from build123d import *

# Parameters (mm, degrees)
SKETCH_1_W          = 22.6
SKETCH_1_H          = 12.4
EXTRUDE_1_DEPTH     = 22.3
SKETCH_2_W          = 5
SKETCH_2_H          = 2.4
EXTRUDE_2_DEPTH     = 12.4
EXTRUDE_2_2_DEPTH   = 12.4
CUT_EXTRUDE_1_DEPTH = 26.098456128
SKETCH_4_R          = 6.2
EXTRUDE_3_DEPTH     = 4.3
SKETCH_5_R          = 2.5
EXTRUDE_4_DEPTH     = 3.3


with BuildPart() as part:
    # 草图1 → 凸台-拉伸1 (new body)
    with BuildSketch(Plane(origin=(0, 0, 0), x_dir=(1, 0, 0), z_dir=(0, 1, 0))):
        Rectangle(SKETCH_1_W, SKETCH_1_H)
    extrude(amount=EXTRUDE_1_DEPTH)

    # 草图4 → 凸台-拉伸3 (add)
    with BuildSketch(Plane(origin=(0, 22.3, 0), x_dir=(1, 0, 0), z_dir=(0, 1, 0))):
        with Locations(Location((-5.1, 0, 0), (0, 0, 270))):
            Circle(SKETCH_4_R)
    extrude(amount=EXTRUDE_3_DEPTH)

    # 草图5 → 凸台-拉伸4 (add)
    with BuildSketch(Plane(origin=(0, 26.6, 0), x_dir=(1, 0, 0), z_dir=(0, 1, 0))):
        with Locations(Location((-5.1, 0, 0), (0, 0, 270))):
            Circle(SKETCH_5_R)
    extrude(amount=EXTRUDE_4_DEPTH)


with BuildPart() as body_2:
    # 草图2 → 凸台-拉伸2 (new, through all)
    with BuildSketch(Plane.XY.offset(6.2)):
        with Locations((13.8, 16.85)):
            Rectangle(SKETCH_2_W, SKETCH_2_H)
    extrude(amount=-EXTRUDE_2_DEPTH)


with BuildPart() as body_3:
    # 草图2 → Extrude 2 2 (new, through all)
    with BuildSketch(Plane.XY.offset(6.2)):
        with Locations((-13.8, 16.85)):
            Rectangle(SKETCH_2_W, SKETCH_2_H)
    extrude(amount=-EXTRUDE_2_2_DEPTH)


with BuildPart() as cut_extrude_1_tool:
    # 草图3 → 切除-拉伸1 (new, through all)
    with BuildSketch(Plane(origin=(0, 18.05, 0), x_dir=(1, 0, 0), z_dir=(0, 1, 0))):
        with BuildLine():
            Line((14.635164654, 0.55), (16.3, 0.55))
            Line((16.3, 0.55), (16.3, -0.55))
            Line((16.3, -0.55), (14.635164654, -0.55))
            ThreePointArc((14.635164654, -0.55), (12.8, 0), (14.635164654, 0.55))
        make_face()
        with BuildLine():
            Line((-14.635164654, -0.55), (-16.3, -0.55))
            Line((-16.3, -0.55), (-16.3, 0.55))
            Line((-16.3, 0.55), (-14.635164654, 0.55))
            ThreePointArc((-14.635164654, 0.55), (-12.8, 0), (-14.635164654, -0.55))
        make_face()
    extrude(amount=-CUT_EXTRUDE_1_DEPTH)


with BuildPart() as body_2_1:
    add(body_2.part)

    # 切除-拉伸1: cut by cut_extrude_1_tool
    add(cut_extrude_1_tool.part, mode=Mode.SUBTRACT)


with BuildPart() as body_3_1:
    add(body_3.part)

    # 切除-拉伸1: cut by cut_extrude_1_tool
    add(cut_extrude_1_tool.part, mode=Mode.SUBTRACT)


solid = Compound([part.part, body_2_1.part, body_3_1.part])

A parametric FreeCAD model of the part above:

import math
import FreeCAD as App
import Part
import Sketcher
Q = App.Units.Quantity


def add_polygon(sketch, points):
    """Adds a closed chain of lines whose ends are joined by coincident constraints."""
    first, n = sketch.GeometryCount, len(points)
    for a, b in zip(points, points[1:] + points[:1]):
        sketch.addGeometry(Part.LineSegment(App.Vector(*a, 0), App.Vector(*b, 0)), False)
    for i in range(n):
        sketch.addConstraint(Sketcher.Constraint("Coincident", first + i, 2, first + (i + 1) % n, 1))

doc = App.newDocument("Part")
body = doc.addObject("PartDesign::Body", "Body")

# Sketch on XZ plane
sketch1 = body.newObject("Sketcher::SketchObject", "Sketch")
sketch1.AttachmentSupport = (doc.getObject("XZ_Plane"), [""])
sketch1.MapMode = "FlatFace"
add_polygon(sketch1, [(-11, -6), (-11, 6), (11, 6), (11, -6)])  # lines 0-3
sketch1.addConstraint(Sketcher.Constraint("Vertical", 0))
sketch1.addConstraint(Sketcher.Constraint("Horizontal", 1))
sketch1.addConstraint(Sketcher.Constraint("Vertical", 2))
sketch1.addConstraint(Sketcher.Constraint("Horizontal", 3))
sketch1.addConstraint(Sketcher.Constraint("Symmetric", 0, 2, 2, 2, -1, 1))
sketch1.addConstraint(Sketcher.Constraint("DistanceX", 1, 1, 1, 2, Q("22.6 mm")))
sketch1.addConstraint(Sketcher.Constraint("DistanceY", 0, 1, 0, 2, Q("12.4 mm")))
pad1 = body.newObject("PartDesign::Pad", "Pad")
pad1.Profile = sketch1
pad1.Length = 22.3
pad1.Reversed = True

# Sketch on XZ plane
sketch2 = body.newObject("Sketcher::SketchObject", "Sketch001")
sketch2.AttachmentSupport = (doc.getObject("XZ_Plane"), [""])
sketch2.MapMode = "FlatFace"
sketch2.AttachmentOffset = App.Placement(App.Vector(0, 0, -22.3), App.Rotation())
sketch2.addGeometry(Part.Circle(App.Vector(-5, 0, 0), App.Vector(0, 0, 1), 6), False)
sketch2.addConstraint(Sketcher.Constraint("PointOnObject", 0, 3, -1))
sketch2.addConstraint(Sketcher.Constraint("Diameter", 0, Q("12.4 mm")))
sketch2.addConstraint(Sketcher.Constraint("DistanceX", 0, 3, -1, 1, Q("5.1 mm")))
pad2 = body.newObject("PartDesign::Pad", "Pad001")
pad2.Profile = sketch2
pad2.Length = 4.3
pad2.Reversed = True

# Sketch on XZ plane
sketch3 = body.newObject("Sketcher::SketchObject", "Sketch002")
sketch3.AttachmentSupport = (doc.getObject("XZ_Plane"), [""])
sketch3.MapMode = "FlatFace"
sketch3.AttachmentOffset = App.Placement(App.Vector(0, 0, -26.6), App.Rotation())
sketch3.addGeometry(Part.Circle(App.Vector(-5.1, 0, 0), App.Vector(0, 0, 1), 2.5), False)
sketch3.addConstraint(Sketcher.Constraint("PointOnObject", 0, 3, -1))
sketch3.addConstraint(Sketcher.Constraint("Diameter", 0, Q("5 mm")))
sketch3.addConstraint(Sketcher.Constraint("DistanceX", 0, 3, -1, 1, Q("5.1 mm")))
pad3 = body.newObject("PartDesign::Pad", "Pad002")
pad3.Profile = sketch3
pad3.Length = 3.3
pad3.Reversed = True
body2 = doc.addObject("PartDesign::Body", "Body001")

# Sketch on XY plane
sketch4 = body2.newObject("Sketcher::SketchObject", "Sketch003")
sketch4.AttachmentSupport = (doc.getObject("XY_Plane001"), [""])
sketch4.MapMode = "FlatFace"
sketch4.AttachmentOffset = App.Placement(App.Vector(0, 0, 6.2), App.Rotation())
add_polygon(sketch4, [(11.3, 18.1), (11.3, 15.7), (16.3, 15.7), (16.3, 18.1)])  # lines 0-3
sketch4.addConstraint(Sketcher.Constraint("Vertical", 0))
sketch4.addConstraint(Sketcher.Constraint("Horizontal", 1))
sketch4.addConstraint(Sketcher.Constraint("Vertical", 2))
sketch4.addConstraint(Sketcher.Constraint("Horizontal", 3))
sketch4.addConstraint(Sketcher.Constraint("DistanceX", 1, 1, 1, 2, Q("5 mm")))
sketch4.addConstraint(Sketcher.Constraint("DistanceY", 0, 2, 0, 1, Q("2.4 mm")))
sketch4.addConstraint(Sketcher.Constraint("DistanceX", -1, 1, 0, 2, Q("11.3 mm")))
sketch4.addConstraint(Sketcher.Constraint("DistanceY", -1, 1, 0, 2, Q("15.65 mm")))
pad4 = body2.newObject("PartDesign::Pad", "Pad003")
pad4.Profile = sketch4
pad4.Length = 12.4
pad4.Reversed = True
body3 = doc.addObject("PartDesign::Body", "Body002")

# Sketch on XY plane
sketch5 = body3.newObject("Sketcher::SketchObject", "Sketch004")
sketch5.AttachmentSupport = (doc.getObject("XY_Plane002"), [""])
sketch5.MapMode = "FlatFace"
sketch5.AttachmentOffset = App.Placement(App.Vector(0, 0, 6.2), App.Rotation())
add_polygon(sketch5, [(-16.3, 18.1), (-16.3, 15.7), (-11.3, 15.7), (-11.3, 18.1)])  # lines 0-3
sketch5.addConstraint(Sketcher.Constraint("Vertical", 0))
sketch5.addConstraint(Sketcher.Constraint("Horizontal", 1))
sketch5.addConstraint(Sketcher.Constraint("Vertical", 2))
sketch5.addConstraint(Sketcher.Constraint("Horizontal", 3))
sketch5.addConstraint(Sketcher.Constraint("DistanceX", 1, 1, 1, 2, Q("5 mm")))
sketch5.addConstraint(Sketcher.Constraint("DistanceY", 0, 2, 0, 1, Q("2.4 mm")))
sketch5.addConstraint(Sketcher.Constraint("DistanceX", 0, 2, -1, 1, Q("16.3 mm")))
sketch5.addConstraint(Sketcher.Constraint("DistanceY", -1, 1, 0, 2, Q("15.65 mm")))
pad5 = body3.newObject("PartDesign::Pad", "Pad004")
pad5.Profile = sketch5
pad5.Length = 12.4
pad5.Reversed = True
body4 = doc.addObject("PartDesign::Body", "Body003")
body4.AllowCompound = True

# Sketch on XZ plane
sketch6 = body4.newObject("Sketcher::SketchObject", "Sketch005")
sketch6.AttachmentSupport = (doc.getObject("XZ_Plane003"), [""])
sketch6.MapMode = "FlatFace"
sketch6.AttachmentOffset = App.Placement(App.Vector(0, 0, -18.05), App.Rotation())
sketch6.addGeometry(Part.LineSegment(App.Vector(16.3, -0.6, 0), App.Vector(14.6, -0.6, 0)), False)
sketch6.addGeometry(Part.ArcOfCircle(Part.Circle(App.Vector(13.8, 0, 0), App.Vector(0, 0, 1), 1), math.radians(33), math.radians(327)), False)
sketch6.addGeometry(Part.LineSegment(App.Vector(14.6, 0.6, 0), App.Vector(16.3, 0.6, 0)), False)
sketch6.addGeometry(Part.LineSegment(App.Vector(16.3, 0.6, 0), App.Vector(16.3, -0.6, 0)), False)
sketch6.addGeometry(Part.LineSegment(App.Vector(-16.3, 0.6, 0), App.Vector(-14.6, 0.6, 0)), False)
sketch6.addGeometry(Part.ArcOfCircle(Part.Circle(App.Vector(-13.8, 0, 0), App.Vector(0, 0, 1), 1), math.radians(-147), math.radians(147)), False)
sketch6.addGeometry(Part.LineSegment(App.Vector(-14.6, -0.6, 0), App.Vector(-16.3, -0.6, 0)), False)
sketch6.addGeometry(Part.LineSegment(App.Vector(-16.3, -0.6, 0), App.Vector(-16.3, 0.6, 0)), False)
sketch6.addConstraint(Sketcher.Constraint("Coincident", 0, 2, 1, 2))
sketch6.addConstraint(Sketcher.Constraint("Coincident", 1, 1, 2, 1))
sketch6.addConstraint(Sketcher.Constraint("Coincident", 2, 2, 3, 1))
sketch6.addConstraint(Sketcher.Constraint("Coincident", 3, 2, 0, 1))
sketch6.addConstraint(Sketcher.Constraint("Coincident", 4, 2, 5, 2))
sketch6.addConstraint(Sketcher.Constraint("Coincident", 5, 1, 6, 1))
sketch6.addConstraint(Sketcher.Constraint("Coincident", 6, 2, 7, 1))
sketch6.addConstraint(Sketcher.Constraint("Coincident", 7, 2, 4, 1))
sketch6.addConstraint(Sketcher.Constraint("Horizontal", 0))
sketch6.addConstraint(Sketcher.Constraint("Horizontal", 2))
sketch6.addConstraint(Sketcher.Constraint("Vertical", 3))
sketch6.addConstraint(Sketcher.Constraint("Horizontal", 4))
sketch6.addConstraint(Sketcher.Constraint("Horizontal", 6))
sketch6.addConstraint(Sketcher.Constraint("Vertical", 7))
sketch6.addConstraint(Sketcher.Constraint("Equal", 1, 5))
sketch6.addConstraint(Sketcher.Constraint("Symmetric", 1, 3, 5, 3, -1, 1))
sketch6.addConstraint(Sketcher.Constraint("Symmetric", 2, 2, 6, 2, -1, 1))
sketch6.addConstraint(Sketcher.Constraint("Symmetric", 1, 1, 4, 2, -2))
sketch6.addConstraint(Sketcher.Constraint("Horizontal", 3, 2, 5, 1))
sketch6.addConstraint(Sketcher.Constraint("Radius", 1, Q("1 mm")))
sketch6.addConstraint(Sketcher.Constraint("DistanceY", 3, 2, 3, 1, Q("1.1 mm")))
sketch6.addConstraint(Sketcher.Constraint("DistanceX", -1, 1, 1, 3, Q("13.8 mm")))
sketch6.addConstraint(Sketcher.Constraint("DistanceX", -1, 1, 2, 2, Q("16.3 mm")))
pad6 = body4.newObject("PartDesign::Pad", "Pad005")
pad6.Profile = sketch6
pad6.Length = 26.098456
doc.recompute()

body5 = doc.addObject("PartDesign::Body", "Body004")
body5.BaseFeature = body4
boolean = body2.newObject("PartDesign::Boolean", "Boolean")
boolean.Type = "Cut"
boolean.addObjects([body5])
doc.recompute()

boolean2 = body3.newObject("PartDesign::Boolean", "Boolean001")
boolean2.Type = "Cut"
boolean2.addObjects([body4])

doc.recompute()
